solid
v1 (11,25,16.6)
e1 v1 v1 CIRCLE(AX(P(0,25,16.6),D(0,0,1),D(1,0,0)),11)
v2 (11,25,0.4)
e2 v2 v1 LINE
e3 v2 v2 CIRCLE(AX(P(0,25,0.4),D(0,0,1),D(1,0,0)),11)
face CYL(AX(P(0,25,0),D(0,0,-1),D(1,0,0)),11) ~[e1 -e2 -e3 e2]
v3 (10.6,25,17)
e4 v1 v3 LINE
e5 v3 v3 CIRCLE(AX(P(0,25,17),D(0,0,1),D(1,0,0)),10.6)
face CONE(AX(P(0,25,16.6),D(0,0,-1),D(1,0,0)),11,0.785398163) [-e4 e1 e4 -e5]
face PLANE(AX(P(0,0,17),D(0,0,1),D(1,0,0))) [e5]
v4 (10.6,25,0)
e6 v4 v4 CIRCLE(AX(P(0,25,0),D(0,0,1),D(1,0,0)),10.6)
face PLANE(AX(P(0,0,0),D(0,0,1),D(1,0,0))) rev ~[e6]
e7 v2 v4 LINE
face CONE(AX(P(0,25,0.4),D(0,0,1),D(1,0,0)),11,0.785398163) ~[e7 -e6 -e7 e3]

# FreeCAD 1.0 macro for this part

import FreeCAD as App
import Part
import Sketcher
from FreeCAD import Vector
Q = App.Units.Quantity


def edges_at(feature, points):
    """Names of the edges that pass closest to the given points."""
    edges = feature.Shape.Edges
    near = lambda p: min(range(len(edges)), key=lambda i: edges[i].distToShape(Part.Vertex(*p))[0])
    return sorted({f"Edge{near(p) + 1}" for p in points})

doc = App.newDocument("Part")
body = doc.addObject("PartDesign::Body", "Body")

# Sketch on XY plane
sketch1 = body.newObject("Sketcher::SketchObject", "Sketch")
sketch1.AttachmentSupport = (doc.getObject("XY_Plane"), [""])
sketch1.MapMode = "FlatFace"
sketch1.addGeometry(Part.Circle(Vector(0, 25, 0), Vector(0, 0, 1), 11), False)
sketch1.addConstraint([
    Sketcher.Constraint("PointOnObject", 0, 3, -2),
    Sketcher.Constraint("Diameter", 0, Q("22 mm")),
    Sketcher.Constraint("DistanceY", -1, 1, 0, 3, Q("25 mm")),
])
pad1 = body.newObject("PartDesign::Pad", "Pad")
pad1.Profile = sketch1
pad1.Length = 17
doc.recompute()

chamfer = body.newObject("PartDesign::Chamfer", "Chamfer")
chamfer.Base = (pad1, edges_at(pad1, [(-11, 25, 0), (-11, 25, 17)]))
chamfer.Size = 0.4

doc.recompute()
